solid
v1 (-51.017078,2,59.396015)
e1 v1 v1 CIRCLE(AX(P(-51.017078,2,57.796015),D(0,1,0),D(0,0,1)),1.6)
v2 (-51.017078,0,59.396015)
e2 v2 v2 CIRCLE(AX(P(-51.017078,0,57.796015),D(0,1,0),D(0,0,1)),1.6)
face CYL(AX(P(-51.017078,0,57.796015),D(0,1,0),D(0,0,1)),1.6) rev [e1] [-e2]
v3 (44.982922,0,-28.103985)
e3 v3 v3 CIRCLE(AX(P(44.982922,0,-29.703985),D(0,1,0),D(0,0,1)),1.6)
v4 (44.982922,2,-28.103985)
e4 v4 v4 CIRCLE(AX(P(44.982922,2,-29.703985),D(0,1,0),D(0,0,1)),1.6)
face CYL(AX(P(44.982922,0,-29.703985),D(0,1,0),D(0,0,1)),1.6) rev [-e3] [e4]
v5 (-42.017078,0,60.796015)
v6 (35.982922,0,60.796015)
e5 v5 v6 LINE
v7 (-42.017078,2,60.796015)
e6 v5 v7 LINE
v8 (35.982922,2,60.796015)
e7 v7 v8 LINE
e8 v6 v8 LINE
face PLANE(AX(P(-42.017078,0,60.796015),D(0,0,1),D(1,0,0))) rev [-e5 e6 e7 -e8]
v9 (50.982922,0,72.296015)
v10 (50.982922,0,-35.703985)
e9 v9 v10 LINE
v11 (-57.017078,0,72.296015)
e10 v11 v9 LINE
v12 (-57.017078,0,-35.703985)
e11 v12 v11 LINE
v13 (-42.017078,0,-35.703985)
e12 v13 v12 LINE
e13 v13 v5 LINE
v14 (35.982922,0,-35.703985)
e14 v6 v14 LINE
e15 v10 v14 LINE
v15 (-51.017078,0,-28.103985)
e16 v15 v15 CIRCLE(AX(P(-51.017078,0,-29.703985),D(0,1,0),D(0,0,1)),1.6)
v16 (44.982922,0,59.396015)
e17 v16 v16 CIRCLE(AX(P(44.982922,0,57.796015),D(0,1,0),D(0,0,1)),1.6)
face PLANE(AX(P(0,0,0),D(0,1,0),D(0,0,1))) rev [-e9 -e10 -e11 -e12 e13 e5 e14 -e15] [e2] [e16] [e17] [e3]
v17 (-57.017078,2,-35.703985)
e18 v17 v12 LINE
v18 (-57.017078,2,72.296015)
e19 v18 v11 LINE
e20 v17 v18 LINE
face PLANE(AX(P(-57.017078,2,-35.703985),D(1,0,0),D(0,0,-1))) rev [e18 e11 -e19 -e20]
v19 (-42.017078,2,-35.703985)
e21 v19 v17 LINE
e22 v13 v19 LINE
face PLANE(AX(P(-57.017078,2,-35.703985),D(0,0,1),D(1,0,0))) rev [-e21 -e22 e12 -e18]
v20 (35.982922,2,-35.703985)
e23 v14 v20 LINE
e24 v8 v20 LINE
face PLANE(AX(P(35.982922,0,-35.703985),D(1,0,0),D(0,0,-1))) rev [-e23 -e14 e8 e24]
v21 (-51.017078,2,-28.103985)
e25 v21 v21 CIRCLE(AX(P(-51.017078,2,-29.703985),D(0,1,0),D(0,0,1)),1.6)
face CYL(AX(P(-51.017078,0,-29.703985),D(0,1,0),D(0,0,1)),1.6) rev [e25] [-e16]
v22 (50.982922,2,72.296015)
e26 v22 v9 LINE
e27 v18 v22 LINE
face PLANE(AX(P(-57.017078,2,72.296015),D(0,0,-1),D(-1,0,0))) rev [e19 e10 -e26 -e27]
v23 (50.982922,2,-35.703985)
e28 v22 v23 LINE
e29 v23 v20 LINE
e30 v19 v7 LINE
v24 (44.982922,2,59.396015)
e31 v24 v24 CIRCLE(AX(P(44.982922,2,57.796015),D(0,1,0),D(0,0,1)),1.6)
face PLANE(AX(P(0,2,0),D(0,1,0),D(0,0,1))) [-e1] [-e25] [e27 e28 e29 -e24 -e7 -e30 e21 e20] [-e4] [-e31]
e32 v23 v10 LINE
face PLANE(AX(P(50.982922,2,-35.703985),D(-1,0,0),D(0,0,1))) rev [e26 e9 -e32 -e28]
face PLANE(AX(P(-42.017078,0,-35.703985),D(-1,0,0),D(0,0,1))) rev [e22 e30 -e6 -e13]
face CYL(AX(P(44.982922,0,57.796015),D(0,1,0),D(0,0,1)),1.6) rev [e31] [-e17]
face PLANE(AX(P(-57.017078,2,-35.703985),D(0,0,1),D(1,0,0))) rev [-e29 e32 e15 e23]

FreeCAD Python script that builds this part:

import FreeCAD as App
import Part
import Sketcher
from FreeCAD import Vector


def add_polygon(sketch, points):
    """Adds a closed chain of lines whose ends are joined by coincident constraints."""
    first, n = sketch.GeometryCount, len(points)
    for a, b in zip(points, points[1:] + points[:1]):
        sketch.addGeometry(Part.LineSegment(App.Vector(*a, 0), App.Vector(*b, 0)), False)
    for i in range(n):
        sketch.addConstraint(Sketcher.Constraint("Coincident", first + i, 2, first + (i + 1) % n, 1))

doc = App.newDocument("Part")
params = doc.addObject("Spreadsheet::Sheet", "Params")
for row, (alias, value) in enumerate([
    ("sketch1_width", "108 mm"),
    ("pad1_length", "2 mm"),
    ("sketch2_diameter", "3.2 mm"),
    ("sketch2_width", "78 mm"),
    ("sketch2_height", "96.5 mm"),
    ("pocket1_length", "2 mm"),
], start=1):
    params.set(f"A{row}", alias)
    params.set(f"B{row}", "=" + value)
    params.setAlias(f"B{row}", alias)

body = doc.addObject("PartDesign::Body", "Body")

# Sketch on XZ plane
sketch1 = body.newObject("Sketcher::SketchObject", "Sketch")
sketch1.AttachmentSupport = (doc.getObject("XZ_Plane"), [""])
sketch1.MapMode = "FlatFace"
add_polygon(sketch1, [(-57, -36), (-57, 72), (51, 72), (51, -36)])  # lines 0-3
sketch1.addConstraint([
    Sketcher.Constraint("Vertical", 0),
    Sketcher.Constraint("Horizontal", 1),
    Sketcher.Constraint("Vertical", 2),
    Sketcher.Constraint("Horizontal", 3),
    Sketcher.Constraint("Equal", 3, 0),
    Sketcher.Constraint("DistanceX", 1, 1, 1, 2, 108.0),
    Sketcher.Constraint("DistanceX", 0, 2, -1, 1, 57.017078),
    Sketcher.Constraint("DistanceY", -1, 1, 0, 2, 72.296015),
])
sketch1.setExpression("Constraints[9]", "Params.sketch1_width")
pad1 = body.newObject("PartDesign::Pad", "Pad")
pad1.Profile = sketch1
pad1.setExpression("Length", "Params.pad1_length")
pad1.Reversed = True

# Sketch on XZ plane
sketch2 = body.newObject("Sketcher::SketchObject", "Sketch001")
sketch2.AttachmentSupport = (doc.getObject("XZ_Plane"), [""])
sketch2.MapMode = "FlatFace"
sketch2.AttachmentOffset = App.Placement(Vector(0, 0, -2), App.Rotation())
sketch2.addGeometry(Part.Circle(Vector(-51, -29.7, 0), Vector(0, 0, 1), 1.6), False)  # 0
sketch2.addGeometry(Part.Circle(Vector(45, -29.7, 0), Vector(0, 0, 1), 1.6), False)  # 1
sketch2.addGeometry(Part.Circle(Vector(-51, 57.8, 0), Vector(0, 0, 1), 1.6), False)  # 2
sketch2.addGeometry(Part.Circle(Vector(45, 57.8, 0), Vector(0, 0, 1), 1.6), False)  # 3
add_polygon(sketch2, [(-42, -35.7), (-42, 60.8), (36, 60.8), (36, -35.7)])  # lines 4-7
sketch2.addConstraint([
    Sketcher.Constraint("Vertical", 4),
    Sketcher.Constraint("Horizontal", 5),
    Sketcher.Constraint("Vertical", 6),
    Sketcher.Constraint("Horizontal", 7),
    Sketcher.Constraint("Equal", 0, 1),
    Sketcher.Constraint("Equal", 1, 2),
    Sketcher.Constraint("Equal", 2, 3),
    Sketcher.Constraint("Horizontal", 0, 3, 1, 3),
    Sketcher.Constraint("Horizontal", 2, 3, 3, 3),
    Sketcher.Constraint("Vertical", 0, 3, 2, 3),
    Sketcher.Constraint("Vertical", 1, 3, 3, 3),
    Sketcher.Constraint("Diameter", 0, 3.2),
    Sketcher.Constraint("DistanceX", 5, 1, 5, 2, 78.0),
    Sketcher.Constraint("DistanceY", 4, 1, 4, 2, 96.5),
    Sketcher.Constraint("DistanceX", 0, 3, 1, 3, 96.0),
    Sketcher.Constraint("DistanceX", 2, 3, 4, 2, 9.0),
    Sketcher.Constraint("DistanceY", 2, 3, 4, 2, 3.0),
    Sketcher.Constraint("DistanceY", 6, 2, 1, 3, 6.0),
    Sketcher.Constraint("DistanceX", 0, 3, -1, 1, 51.017078),
    Sketcher.Constraint("DistanceY", 0, 3, -1, 1, 29.703985),
])
sketch2.setExpression("Constraints[15]", "Params.sketch2_diameter")
sketch2.setExpression("Constraints[16]", "Params.sketch2_width")
sketch2.setExpression("Constraints[17]", "Params.sketch2_height")
pocket1 = body.newObject("PartDesign::Pocket", "Pocket")
pocket1.Profile = sketch2
pocket1.setExpression("Length", "Params.pocket1_length")
pocket1.Reversed = True

doc.recompute()
